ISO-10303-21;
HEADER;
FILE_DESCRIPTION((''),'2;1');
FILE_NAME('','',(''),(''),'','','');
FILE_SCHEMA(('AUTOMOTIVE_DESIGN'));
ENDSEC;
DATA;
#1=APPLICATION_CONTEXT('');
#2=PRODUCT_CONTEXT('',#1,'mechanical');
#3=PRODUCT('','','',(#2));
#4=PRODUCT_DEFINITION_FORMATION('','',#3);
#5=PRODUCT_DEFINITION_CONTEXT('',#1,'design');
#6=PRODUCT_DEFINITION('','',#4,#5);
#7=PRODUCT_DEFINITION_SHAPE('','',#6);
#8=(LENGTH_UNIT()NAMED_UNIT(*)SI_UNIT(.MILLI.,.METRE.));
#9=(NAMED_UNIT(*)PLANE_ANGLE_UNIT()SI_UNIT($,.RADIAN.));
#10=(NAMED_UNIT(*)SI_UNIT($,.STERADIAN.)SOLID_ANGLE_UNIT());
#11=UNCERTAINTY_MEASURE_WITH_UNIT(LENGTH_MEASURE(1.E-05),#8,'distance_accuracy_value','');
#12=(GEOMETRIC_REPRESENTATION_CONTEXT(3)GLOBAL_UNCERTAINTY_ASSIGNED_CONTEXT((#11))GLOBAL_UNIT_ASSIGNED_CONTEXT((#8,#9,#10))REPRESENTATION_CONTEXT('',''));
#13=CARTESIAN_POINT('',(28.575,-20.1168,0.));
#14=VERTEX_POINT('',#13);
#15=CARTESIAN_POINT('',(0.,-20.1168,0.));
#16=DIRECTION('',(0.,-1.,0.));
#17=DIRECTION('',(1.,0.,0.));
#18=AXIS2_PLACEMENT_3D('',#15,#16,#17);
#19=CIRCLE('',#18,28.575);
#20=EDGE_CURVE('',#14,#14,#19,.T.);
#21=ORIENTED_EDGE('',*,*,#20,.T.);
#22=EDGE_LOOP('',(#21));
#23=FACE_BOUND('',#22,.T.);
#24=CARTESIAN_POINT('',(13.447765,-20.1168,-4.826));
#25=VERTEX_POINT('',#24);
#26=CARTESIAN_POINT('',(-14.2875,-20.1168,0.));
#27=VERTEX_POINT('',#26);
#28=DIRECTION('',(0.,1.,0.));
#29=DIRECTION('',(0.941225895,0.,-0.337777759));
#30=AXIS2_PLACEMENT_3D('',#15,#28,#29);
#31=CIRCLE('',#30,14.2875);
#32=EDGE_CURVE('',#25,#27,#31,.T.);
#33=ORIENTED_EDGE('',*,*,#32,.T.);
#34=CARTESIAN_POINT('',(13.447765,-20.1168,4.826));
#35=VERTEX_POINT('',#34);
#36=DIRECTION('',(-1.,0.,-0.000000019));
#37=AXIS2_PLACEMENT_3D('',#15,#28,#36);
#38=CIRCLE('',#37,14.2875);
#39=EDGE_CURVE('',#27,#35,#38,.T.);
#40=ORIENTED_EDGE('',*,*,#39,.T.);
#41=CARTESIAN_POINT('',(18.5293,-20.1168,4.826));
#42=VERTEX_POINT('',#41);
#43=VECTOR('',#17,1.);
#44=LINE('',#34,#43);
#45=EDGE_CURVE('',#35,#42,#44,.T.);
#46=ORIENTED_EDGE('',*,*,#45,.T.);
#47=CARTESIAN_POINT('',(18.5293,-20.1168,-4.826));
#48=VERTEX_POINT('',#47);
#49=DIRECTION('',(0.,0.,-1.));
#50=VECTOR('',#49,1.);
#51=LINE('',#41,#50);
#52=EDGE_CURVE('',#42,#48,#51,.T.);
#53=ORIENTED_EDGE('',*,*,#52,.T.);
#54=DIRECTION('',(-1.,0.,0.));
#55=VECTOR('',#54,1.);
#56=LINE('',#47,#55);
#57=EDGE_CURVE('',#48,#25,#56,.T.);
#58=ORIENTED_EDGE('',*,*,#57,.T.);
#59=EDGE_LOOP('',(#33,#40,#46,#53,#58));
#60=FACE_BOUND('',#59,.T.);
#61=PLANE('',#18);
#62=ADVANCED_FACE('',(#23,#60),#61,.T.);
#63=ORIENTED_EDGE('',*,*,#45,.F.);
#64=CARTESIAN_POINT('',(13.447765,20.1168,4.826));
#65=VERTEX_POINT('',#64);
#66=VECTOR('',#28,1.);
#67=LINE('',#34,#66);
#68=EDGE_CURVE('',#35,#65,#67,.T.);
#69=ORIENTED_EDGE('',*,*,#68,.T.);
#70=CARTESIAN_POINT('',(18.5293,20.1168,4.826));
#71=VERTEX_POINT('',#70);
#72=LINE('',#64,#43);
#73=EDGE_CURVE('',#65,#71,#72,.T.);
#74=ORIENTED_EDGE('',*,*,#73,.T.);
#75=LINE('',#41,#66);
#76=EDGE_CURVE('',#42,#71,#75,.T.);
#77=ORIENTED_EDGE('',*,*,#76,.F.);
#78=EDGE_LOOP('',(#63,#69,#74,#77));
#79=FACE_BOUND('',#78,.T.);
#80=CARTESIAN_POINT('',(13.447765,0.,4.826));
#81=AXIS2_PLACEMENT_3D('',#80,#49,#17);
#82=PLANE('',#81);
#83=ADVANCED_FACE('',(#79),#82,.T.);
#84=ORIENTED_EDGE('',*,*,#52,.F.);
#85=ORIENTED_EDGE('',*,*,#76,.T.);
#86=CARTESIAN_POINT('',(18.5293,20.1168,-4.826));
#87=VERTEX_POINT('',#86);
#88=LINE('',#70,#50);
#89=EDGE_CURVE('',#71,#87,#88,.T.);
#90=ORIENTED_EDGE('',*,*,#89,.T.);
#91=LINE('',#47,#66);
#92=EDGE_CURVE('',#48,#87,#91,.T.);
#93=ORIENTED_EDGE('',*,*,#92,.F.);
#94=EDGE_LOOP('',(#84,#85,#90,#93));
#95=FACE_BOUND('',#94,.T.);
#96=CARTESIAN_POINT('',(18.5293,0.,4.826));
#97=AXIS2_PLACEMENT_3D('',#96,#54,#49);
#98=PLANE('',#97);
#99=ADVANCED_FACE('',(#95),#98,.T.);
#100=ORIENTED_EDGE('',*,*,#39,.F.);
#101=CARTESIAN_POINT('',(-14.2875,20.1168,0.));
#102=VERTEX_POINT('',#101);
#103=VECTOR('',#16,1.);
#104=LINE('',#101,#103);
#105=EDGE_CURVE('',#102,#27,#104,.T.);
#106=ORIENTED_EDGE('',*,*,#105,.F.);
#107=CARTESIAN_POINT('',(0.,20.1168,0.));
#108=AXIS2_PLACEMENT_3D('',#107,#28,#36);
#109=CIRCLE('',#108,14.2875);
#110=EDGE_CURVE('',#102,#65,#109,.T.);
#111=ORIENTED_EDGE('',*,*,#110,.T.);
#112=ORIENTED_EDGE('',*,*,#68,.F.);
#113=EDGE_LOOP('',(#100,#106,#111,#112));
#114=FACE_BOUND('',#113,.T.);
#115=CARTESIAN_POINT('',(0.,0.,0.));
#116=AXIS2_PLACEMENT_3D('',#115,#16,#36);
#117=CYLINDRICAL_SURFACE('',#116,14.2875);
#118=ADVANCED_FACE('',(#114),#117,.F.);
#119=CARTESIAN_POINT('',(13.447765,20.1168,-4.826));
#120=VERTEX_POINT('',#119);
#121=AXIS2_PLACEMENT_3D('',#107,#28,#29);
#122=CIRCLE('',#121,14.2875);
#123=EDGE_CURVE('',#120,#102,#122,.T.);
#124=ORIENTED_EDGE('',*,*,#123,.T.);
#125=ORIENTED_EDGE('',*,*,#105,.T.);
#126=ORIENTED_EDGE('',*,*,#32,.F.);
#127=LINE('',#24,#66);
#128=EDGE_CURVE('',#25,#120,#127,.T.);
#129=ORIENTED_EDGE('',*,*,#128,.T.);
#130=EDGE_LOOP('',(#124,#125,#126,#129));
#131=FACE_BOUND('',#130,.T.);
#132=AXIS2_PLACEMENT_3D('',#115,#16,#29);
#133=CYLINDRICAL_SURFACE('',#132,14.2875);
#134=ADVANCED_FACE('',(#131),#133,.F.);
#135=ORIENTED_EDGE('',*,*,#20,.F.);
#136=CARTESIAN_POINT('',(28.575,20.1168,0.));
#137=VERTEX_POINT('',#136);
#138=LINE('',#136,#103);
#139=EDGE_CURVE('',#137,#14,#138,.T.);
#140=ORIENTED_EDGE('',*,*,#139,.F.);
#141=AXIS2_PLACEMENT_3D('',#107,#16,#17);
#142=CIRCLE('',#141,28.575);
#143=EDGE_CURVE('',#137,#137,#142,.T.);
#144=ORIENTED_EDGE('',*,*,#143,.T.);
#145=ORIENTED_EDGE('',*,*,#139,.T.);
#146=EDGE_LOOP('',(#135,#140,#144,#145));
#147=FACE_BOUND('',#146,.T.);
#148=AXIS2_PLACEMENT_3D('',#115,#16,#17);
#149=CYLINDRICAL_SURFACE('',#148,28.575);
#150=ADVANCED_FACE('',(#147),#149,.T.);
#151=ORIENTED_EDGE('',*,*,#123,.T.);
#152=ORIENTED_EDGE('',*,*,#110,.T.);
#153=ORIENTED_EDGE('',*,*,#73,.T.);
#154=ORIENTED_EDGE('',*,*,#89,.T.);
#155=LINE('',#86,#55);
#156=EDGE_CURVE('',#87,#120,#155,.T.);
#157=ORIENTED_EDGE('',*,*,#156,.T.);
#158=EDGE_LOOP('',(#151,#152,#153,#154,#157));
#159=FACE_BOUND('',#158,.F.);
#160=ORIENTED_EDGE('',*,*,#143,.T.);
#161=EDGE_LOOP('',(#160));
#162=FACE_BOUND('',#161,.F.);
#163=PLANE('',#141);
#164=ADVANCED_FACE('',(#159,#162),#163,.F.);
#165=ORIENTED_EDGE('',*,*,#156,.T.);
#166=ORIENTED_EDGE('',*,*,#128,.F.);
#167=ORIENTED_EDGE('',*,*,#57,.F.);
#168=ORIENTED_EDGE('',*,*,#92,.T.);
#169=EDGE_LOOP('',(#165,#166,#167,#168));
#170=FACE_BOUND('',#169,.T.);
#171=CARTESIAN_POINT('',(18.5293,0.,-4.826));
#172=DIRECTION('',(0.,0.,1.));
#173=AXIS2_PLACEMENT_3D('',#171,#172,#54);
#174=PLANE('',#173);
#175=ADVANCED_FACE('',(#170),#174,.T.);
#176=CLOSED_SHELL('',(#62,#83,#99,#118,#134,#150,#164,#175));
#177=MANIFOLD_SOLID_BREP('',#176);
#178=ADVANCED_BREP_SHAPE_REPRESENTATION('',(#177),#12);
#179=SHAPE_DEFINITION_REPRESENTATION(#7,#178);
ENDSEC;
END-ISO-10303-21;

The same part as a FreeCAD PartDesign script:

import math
import FreeCAD as App
import Part
import Sketcher
Q = App.Units.Quantity

doc = App.newDocument("Part")
body = doc.addObject("PartDesign::Body", "Body")

sketch1 = body.newObject("Sketcher::SketchObject", "Sketch")
sketch1.AttachmentSupport = (doc.getObject("XZ_Plane"), [""])
sketch1.MapMode = "FlatFace"
sketch1.addGeometry([
    Part.Circle(App.Vector(0, 0, 0), App.Vector(0, 0, 1), 29),
    Part.ArcOfCircle(Part.Circle(App.Vector(0, 0, 0), App.Vector(0, 0, 1), 14), math.radians(180), math.radians(340)),
    Part.ArcOfCircle(Part.Circle(App.Vector(0, 0, 0), App.Vector(0, 0, 1), 14), math.radians(20), math.radians(180)),
    Part.LineSegment(App.Vector(13, 5, 0), App.Vector(19, 5, 0)),
    Part.LineSegment(App.Vector(19, 5, 0), App.Vector(19, -5, 0)),
    Part.LineSegment(App.Vector(19, -5, 0), App.Vector(13, -5, 0)),
], False)
sketch1.addConstraint([
    Sketcher.Constraint("Tangent", 1, 1, 2, 2),
    Sketcher.Constraint("Coincident", 2, 1, 3, 1),
    Sketcher.Constraint("Coincident", 3, 2, 4, 1),
    Sketcher.Constraint("Coincident", 4, 2, 5, 1),
    Sketcher.Constraint("Coincident", 5, 2, 1, 2),
    Sketcher.Constraint("Horizontal", 3),
    Sketcher.Constraint("Vertical", 4),
    Sketcher.Constraint("Horizontal", 5),
    Sketcher.Constraint("Coincident", 0, 3, -1, 1),
    Sketcher.Constraint("Coincident", 1, 3, -1, 1),
    Sketcher.Constraint("Equal", 1, 2),
    Sketcher.Constraint("PointOnObject", 1, 1, -1),
    Sketcher.Constraint("Vertical", 2, 1, 5, 2),
    Sketcher.Constraint("Diameter", 0, Q("2.25 in")),
    Sketcher.Constraint("Radius", 1, Q("0.5625 in")),
    Sketcher.Constraint("DistanceY", 4, 2, 4, 1, Q("0.38 in")),
    Sketcher.Constraint("DistanceX", 1, 1, 3, 2, Q("1.292 in")),
])
pad1 = body.newObject("PartDesign::Pad", "Pad")
pad1.Profile = sketch1
pad1.Length = Q("1.584 in")
pad1.Midplane = True

doc.recompute()
